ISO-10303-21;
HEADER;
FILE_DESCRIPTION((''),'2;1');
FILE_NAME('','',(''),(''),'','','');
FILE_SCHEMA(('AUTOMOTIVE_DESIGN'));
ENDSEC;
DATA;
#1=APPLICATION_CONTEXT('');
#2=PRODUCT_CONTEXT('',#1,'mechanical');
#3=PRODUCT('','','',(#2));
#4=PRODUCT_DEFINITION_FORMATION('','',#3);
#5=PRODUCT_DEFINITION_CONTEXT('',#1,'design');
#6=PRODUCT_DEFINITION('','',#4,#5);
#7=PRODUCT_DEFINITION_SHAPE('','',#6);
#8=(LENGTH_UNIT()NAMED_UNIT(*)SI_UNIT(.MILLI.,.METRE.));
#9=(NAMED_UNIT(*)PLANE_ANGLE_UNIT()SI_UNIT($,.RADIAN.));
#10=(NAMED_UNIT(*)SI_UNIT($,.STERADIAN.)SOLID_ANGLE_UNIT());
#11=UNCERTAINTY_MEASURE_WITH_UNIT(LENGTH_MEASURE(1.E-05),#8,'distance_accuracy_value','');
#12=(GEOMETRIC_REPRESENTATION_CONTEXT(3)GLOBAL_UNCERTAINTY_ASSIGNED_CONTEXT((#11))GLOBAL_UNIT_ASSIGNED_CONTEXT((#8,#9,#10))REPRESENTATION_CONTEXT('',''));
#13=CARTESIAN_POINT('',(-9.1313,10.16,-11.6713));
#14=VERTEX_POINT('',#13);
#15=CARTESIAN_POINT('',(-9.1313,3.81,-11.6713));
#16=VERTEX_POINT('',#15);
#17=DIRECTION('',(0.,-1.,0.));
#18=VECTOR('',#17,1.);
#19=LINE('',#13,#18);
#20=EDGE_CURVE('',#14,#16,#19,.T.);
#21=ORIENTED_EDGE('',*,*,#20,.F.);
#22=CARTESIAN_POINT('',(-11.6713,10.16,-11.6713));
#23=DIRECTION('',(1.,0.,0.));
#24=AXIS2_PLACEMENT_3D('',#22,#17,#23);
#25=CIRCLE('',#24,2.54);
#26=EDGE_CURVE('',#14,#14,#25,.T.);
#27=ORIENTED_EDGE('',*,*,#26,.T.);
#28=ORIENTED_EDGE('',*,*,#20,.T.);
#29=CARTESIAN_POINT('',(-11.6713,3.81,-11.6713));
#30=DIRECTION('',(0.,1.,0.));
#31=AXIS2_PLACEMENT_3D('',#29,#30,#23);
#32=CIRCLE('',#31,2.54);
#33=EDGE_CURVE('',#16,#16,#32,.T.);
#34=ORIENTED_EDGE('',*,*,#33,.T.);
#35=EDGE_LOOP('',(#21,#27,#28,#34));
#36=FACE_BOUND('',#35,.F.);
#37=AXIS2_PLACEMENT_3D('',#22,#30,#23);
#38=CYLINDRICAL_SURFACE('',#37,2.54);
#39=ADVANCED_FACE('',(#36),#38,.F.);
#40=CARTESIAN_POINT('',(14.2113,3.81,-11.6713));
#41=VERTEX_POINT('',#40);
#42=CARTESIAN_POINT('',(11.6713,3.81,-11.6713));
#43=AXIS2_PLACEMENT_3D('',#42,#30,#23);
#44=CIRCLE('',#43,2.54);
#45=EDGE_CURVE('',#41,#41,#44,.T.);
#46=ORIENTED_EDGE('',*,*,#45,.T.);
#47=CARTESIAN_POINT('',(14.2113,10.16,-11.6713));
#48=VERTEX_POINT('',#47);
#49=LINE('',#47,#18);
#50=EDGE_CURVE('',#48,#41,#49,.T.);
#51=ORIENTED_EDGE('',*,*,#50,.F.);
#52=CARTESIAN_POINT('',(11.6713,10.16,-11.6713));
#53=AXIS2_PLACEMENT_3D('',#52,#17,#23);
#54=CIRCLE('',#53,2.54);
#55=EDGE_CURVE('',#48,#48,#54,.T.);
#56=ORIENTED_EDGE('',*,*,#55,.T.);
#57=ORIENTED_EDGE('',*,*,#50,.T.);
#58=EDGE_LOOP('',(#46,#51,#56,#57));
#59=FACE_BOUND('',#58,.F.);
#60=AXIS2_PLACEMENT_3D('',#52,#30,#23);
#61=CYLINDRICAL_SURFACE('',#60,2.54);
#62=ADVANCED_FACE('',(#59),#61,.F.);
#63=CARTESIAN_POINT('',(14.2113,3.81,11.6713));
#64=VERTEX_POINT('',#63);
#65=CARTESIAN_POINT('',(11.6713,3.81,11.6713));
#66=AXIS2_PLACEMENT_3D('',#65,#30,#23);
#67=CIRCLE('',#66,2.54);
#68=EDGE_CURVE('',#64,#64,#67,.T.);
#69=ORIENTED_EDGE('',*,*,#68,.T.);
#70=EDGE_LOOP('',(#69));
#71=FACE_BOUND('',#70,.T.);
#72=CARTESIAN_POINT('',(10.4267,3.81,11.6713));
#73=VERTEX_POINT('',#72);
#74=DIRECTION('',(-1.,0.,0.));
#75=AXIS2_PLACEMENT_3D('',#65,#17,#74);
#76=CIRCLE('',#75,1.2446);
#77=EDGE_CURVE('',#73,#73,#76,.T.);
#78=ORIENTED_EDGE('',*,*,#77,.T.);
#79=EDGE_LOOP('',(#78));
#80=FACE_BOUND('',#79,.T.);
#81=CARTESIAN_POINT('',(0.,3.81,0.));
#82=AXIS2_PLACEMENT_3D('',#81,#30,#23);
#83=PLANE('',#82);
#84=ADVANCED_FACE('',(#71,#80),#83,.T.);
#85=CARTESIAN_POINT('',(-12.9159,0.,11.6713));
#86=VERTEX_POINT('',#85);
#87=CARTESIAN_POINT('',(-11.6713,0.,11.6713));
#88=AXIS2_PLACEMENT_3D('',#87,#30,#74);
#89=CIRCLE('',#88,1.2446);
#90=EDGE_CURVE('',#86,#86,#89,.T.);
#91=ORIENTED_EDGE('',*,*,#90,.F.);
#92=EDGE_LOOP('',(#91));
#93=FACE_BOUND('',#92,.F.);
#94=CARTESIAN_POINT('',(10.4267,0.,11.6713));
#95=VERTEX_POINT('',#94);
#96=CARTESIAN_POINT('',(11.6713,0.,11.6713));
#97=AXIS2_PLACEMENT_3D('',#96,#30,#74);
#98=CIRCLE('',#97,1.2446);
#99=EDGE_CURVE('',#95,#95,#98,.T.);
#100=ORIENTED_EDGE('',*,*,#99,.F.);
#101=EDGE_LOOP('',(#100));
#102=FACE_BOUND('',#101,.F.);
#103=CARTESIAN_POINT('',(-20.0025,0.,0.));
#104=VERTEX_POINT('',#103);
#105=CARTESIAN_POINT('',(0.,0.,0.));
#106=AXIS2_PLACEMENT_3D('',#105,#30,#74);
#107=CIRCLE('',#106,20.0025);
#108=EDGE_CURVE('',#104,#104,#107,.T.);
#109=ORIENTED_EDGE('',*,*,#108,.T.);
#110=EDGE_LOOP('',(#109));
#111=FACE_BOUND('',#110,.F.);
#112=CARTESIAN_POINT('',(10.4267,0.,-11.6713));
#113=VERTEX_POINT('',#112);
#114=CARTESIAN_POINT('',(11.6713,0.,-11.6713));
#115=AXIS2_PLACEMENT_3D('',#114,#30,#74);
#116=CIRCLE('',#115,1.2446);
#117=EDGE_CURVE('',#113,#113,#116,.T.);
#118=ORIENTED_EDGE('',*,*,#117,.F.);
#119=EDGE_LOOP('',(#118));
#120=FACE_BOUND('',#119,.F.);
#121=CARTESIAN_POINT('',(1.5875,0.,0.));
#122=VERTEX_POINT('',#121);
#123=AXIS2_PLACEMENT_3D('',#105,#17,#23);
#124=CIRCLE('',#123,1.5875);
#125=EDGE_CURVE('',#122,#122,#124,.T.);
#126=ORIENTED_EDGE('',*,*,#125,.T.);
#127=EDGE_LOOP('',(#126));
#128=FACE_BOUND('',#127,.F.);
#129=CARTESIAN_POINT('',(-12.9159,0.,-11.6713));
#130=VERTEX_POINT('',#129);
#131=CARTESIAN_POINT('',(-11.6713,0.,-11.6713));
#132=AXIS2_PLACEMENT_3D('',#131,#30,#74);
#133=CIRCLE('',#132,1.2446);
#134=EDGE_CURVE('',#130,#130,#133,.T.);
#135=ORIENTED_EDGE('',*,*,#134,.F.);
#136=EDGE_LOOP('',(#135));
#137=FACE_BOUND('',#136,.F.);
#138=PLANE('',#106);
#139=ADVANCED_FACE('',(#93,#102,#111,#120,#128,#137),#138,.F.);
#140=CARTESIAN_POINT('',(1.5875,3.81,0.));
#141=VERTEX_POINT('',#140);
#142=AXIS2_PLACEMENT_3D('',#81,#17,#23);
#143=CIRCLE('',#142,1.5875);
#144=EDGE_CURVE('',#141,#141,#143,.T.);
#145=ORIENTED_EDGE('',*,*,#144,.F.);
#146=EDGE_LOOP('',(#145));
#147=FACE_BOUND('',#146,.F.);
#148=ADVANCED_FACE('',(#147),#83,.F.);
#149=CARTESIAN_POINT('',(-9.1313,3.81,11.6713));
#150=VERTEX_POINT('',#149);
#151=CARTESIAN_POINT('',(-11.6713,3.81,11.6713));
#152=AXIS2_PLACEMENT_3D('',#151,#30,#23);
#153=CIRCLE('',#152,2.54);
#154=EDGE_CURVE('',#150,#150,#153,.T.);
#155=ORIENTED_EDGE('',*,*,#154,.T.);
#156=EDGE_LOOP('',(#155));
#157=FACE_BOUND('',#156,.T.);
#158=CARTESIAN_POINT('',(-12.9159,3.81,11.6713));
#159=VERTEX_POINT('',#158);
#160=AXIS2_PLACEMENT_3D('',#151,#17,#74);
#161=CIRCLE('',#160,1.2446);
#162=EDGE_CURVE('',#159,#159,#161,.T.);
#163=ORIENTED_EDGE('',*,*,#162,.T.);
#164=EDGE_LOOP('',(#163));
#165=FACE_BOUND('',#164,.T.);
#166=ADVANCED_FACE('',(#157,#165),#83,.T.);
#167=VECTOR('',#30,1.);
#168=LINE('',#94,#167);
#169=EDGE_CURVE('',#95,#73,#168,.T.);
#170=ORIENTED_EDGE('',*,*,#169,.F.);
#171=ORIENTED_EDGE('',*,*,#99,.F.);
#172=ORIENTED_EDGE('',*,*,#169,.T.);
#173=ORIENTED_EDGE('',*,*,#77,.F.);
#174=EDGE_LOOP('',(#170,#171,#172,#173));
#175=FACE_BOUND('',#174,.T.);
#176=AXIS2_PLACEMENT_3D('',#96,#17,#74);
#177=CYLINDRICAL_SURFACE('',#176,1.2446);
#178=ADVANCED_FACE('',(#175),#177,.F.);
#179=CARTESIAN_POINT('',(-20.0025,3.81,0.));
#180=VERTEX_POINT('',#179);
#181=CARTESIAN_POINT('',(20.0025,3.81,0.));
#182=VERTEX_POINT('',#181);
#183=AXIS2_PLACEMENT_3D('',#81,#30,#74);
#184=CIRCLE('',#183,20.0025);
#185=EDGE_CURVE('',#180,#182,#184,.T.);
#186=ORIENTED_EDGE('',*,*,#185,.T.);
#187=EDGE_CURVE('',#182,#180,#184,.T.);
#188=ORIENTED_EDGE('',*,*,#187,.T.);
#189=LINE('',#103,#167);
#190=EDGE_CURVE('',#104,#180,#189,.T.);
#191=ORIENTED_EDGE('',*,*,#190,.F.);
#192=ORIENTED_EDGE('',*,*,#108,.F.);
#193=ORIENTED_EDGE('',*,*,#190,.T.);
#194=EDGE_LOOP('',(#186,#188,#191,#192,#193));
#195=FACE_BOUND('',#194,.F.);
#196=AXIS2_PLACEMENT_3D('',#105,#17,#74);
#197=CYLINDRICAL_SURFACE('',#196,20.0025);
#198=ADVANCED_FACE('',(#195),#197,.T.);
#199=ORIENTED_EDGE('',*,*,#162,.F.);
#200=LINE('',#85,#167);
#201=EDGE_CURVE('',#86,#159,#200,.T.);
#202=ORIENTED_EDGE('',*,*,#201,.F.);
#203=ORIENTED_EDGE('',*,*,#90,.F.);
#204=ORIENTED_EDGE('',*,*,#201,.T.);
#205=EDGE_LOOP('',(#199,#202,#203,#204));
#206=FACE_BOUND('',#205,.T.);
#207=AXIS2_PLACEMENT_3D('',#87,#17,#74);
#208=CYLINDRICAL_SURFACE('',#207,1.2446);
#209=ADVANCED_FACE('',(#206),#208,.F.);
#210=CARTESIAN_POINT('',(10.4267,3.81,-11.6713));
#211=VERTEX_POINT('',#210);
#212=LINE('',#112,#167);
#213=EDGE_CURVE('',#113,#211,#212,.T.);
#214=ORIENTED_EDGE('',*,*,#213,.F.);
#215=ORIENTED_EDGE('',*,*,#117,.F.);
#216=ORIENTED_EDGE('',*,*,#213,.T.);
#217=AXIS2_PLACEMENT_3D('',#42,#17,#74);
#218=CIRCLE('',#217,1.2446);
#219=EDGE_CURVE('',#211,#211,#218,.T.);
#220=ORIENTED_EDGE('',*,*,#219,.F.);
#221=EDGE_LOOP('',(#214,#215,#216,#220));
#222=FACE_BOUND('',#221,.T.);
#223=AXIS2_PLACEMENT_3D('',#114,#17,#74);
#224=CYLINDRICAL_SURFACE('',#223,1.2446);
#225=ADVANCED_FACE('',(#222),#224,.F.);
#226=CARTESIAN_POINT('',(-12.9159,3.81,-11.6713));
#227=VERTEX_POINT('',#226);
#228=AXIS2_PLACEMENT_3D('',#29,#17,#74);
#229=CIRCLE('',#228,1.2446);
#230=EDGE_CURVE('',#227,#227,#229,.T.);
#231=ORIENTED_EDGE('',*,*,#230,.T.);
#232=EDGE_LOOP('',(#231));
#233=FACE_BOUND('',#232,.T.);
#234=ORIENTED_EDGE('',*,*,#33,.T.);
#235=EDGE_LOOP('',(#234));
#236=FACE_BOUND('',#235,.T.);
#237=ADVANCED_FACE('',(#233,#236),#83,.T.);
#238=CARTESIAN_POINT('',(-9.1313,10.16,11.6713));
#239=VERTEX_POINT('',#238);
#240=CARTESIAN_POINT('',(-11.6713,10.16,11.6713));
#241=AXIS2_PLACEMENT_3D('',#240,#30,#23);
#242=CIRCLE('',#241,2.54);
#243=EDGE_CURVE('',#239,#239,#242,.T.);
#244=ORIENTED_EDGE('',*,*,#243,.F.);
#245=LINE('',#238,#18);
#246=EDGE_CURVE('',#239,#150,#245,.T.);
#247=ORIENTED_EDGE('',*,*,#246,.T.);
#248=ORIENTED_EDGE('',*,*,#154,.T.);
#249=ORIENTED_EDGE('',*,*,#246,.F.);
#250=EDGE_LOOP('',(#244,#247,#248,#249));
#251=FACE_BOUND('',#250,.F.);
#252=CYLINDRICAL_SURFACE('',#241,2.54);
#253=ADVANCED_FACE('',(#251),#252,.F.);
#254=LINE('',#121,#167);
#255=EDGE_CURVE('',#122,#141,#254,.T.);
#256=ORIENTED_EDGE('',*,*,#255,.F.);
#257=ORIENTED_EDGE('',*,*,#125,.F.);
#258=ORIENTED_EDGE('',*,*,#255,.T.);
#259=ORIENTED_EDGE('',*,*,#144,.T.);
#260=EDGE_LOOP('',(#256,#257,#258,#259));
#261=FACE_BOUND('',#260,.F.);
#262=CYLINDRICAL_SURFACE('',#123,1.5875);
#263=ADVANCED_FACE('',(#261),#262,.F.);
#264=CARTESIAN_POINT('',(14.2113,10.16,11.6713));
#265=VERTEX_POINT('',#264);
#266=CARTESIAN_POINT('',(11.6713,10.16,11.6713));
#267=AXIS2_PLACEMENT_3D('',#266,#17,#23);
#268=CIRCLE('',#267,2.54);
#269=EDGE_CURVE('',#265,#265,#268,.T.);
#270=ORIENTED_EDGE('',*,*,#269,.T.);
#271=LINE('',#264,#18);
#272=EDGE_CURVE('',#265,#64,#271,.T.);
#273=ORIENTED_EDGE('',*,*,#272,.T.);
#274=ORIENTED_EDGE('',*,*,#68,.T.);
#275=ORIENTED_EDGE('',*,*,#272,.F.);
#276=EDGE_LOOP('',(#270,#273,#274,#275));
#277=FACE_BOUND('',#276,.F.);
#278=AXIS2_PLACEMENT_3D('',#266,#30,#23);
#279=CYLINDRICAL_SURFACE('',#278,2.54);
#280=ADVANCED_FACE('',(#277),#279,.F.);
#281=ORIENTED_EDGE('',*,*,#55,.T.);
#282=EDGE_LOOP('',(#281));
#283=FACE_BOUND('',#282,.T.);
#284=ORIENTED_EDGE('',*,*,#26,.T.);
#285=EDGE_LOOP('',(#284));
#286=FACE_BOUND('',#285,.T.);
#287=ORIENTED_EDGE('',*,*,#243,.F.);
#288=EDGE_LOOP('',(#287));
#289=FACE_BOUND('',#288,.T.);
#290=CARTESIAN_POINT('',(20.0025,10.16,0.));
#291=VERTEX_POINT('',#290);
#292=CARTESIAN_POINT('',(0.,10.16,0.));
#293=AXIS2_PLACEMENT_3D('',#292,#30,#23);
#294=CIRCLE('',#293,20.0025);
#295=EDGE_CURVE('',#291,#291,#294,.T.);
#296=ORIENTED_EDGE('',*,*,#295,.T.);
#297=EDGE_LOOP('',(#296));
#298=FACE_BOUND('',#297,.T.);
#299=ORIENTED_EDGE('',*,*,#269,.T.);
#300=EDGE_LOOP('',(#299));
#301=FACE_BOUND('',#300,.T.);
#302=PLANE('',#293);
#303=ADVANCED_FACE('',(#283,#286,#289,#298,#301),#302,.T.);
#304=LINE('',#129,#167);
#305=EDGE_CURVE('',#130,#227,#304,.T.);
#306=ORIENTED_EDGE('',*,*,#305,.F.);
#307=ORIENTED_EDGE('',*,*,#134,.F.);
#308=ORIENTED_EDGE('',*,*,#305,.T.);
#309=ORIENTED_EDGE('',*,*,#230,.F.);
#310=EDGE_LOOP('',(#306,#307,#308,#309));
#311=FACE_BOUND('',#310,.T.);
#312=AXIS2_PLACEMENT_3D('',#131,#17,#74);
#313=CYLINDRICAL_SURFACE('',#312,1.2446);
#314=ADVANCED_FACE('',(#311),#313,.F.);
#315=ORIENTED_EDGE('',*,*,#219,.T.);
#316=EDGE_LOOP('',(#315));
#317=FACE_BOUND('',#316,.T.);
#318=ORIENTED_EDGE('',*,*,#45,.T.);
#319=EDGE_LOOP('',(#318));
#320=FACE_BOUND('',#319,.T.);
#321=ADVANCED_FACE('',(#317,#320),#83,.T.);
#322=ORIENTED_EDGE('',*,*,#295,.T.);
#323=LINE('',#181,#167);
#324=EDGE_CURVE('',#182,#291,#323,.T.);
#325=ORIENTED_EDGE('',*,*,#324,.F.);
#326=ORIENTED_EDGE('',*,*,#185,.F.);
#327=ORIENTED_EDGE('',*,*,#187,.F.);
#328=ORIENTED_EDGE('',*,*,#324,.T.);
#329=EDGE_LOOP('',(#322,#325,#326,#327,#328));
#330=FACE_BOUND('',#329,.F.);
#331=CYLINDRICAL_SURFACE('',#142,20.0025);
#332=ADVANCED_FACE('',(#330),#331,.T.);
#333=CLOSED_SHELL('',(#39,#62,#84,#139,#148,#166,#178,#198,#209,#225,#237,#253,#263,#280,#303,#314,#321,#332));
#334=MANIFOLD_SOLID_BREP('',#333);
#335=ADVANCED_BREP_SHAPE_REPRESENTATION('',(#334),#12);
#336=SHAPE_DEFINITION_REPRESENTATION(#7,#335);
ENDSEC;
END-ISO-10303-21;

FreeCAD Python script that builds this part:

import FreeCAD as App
import Part
import Sketcher
Q = App.Units.Quantity

doc = App.newDocument("Part")
params = doc.addObject("Spreadsheet::Sheet", "Params")
for row, (alias, value) in enumerate([
    ("sketch1_diameter", "1.575 in"),
    ("sketch1_diameter2", "0.098 in"),
    ("pad1_length", "0.15 in"),
    ("sketch2_diameter", "0.125 in"),
    ("pocket1_length", "0.25 in"),
    ("sketch3_diameter", "1.575 in"),
    ("pad2_length", "0.25 in"),
    ("sketch4_diameter", "0.2 in"),
    ("pocket2_length", "0.25 in"),
], start=1):
    params.set(f"A{row}", alias)
    params.set(f"B{row}", "=" + value)
    params.setAlias(f"B{row}", alias)

body = doc.addObject("PartDesign::Body", "Body")

# Sketch on XZ plane
sketch1 = body.newObject("Sketcher::SketchObject", "Sketch")
sketch1.AttachmentSupport = (doc.getObject("XZ_Plane"), [""])
sketch1.MapMode = "FlatFace"
sketch1.addGeometry(Part.Circle(App.Vector(0, 0, 0), App.Vector(0, 0, 1), 20), False)
sketch1.addGeometry(Part.Circle(App.Vector(11.7, 11.7, 0), App.Vector(0, 0, 1), 1.2), False)
sketch1.addGeometry(Part.Circle(App.Vector(11.7, -11.7, 0), App.Vector(0, 0, 1), 1.2), False)
sketch1.addGeometry(Part.Circle(App.Vector(-11.7, -11.7, 0), App.Vector(0, 0, 1), 1.2), False)
sketch1.addGeometry(Part.Circle(App.Vector(-11.7, 11.7, 0), App.Vector(0, 0, 1), 1.2), False)
sketch1.addConstraint(Sketcher.Constraint("Coincident", 0, 3, -1, 1))
sketch1.addConstraint(Sketcher.Constraint("Equal", 1, 2))
sketch1.addConstraint(Sketcher.Constraint("Equal", 2, 3))
sketch1.addConstraint(Sketcher.Constraint("Equal", 3, 4))
sketch1.addConstraint(Sketcher.Constraint("Symmetric", 1, 3, 3, 3, -1, 1))
sketch1.addConstraint(Sketcher.Constraint("Symmetric", 2, 3, 4, 3, -1, 1))
sketch1.addConstraint(Sketcher.Constraint("Symmetric", 2, 3, 3, 3, -2))
sketch1.addConstraint(Sketcher.Constraint("Diameter", 0, Q("1.575 in")))
sketch1.addConstraint(Sketcher.Constraint("Diameter", 1, Q("0.098 in")))
sketch1.addConstraint(Sketcher.Constraint("DistanceY", 2, 3, 1, 3, Q("0.919 in")))
sketch1.addConstraint(Sketcher.Constraint("DistanceX", 3, 3, 2, 3, Q("0.919 in")))
sketch1.setExpression("Constraints[7]", "Params.sketch1_diameter")
sketch1.setExpression("Constraints[8]", "Params.sketch1_diameter2")
pad1 = body.newObject("PartDesign::Pad", "Pad")
pad1.Profile = sketch1
pad1.setExpression("Length", "Params.pad1_length")
pad1.Reversed = True

# Sketch on XZ plane
sketch2 = body.newObject("Sketcher::SketchObject", "Sketch001")
sketch2.AttachmentSupport = (doc.getObject("XZ_Plane"), [""])
sketch2.MapMode = "FlatFace"
sketch2.addGeometry(Part.Circle(App.Vector(0, 0, 0), App.Vector(0, 0, 1), 1.6), False)
sketch2.addConstraint(Sketcher.Constraint("Coincident", 0, 3, -1, 1))
sketch2.addConstraint(Sketcher.Constraint("Diameter", 0, Q("0.125 in")))
sketch2.setExpression("Constraints[1]", "Params.sketch2_diameter")
pocket1 = body.newObject("PartDesign::Pocket", "Pocket")
pocket1.Profile = sketch2
pocket1.setExpression("Length", "Params.pocket1_length")

# Sketch on XZ plane
sketch3 = body.newObject("Sketcher::SketchObject", "Sketch002")
sketch3.AttachmentSupport = (doc.getObject("XZ_Plane"), [""])
sketch3.MapMode = "FlatFace"
sketch3.AttachmentOffset = App.Placement(App.Vector(0, 0, -0.15 * 25.4), App.Rotation())
sketch3.addGeometry(Part.Circle(App.Vector(0, 0, 0), App.Vector(0, 0, 1), 20), False)
sketch3.addConstraint(Sketcher.Constraint("Coincident", 0, 3, -1, 1))
sketch3.addConstraint(Sketcher.Constraint("Diameter", 0, Q("1.575 in")))
sketch3.setExpression("Constraints[1]", "Params.sketch3_diameter")
pad2 = body.newObject("PartDesign::Pad", "Pad001")
pad2.Profile = sketch3
pad2.setExpression("Length", "Params.pad2_length")
pad2.Reversed = True

# Sketch on XZ plane
sketch4 = body.newObject("Sketcher::SketchObject", "Sketch003")
sketch4.AttachmentSupport = (doc.getObject("XZ_Plane"), [""])
sketch4.MapMode = "FlatFace"
sketch4.AttachmentOffset = App.Placement(App.Vector(0, 0, -0.4 * 25.4), App.Rotation())
sketch4.addGeometry(Part.Circle(App.Vector(-11.7, 11.7, 0), App.Vector(0, 0, 1), 2.5), False)
sketch4.addGeometry(Part.Circle(App.Vector(11.7, 11.7, 0), App.Vector(0, 0, 1), 2.5), False)
sketch4.addGeometry(Part.Circle(App.Vector(-11.7, -11.7, 0), App.Vector(0, 0, 1), 2.5), False)
sketch4.addGeometry(Part.Circle(App.Vector(11.7, -11.7, 0), App.Vector(0, 0, 1), 2.5), False)
sketch4.addConstraint(Sketcher.Constraint("Equal", 0, 1))
sketch4.addConstraint(Sketcher.Constraint("Equal", 1, 2))
sketch4.addConstraint(Sketcher.Constraint("Equal", 2, 3))
sketch4.addConstraint(Sketcher.Constraint("Symmetric", 1, 3, 2, 3, -1, 1))
sketch4.addConstraint(Sketcher.Constraint("Symmetric", 0, 3, 3, 3, -1, 1))
sketch4.addConstraint(Sketcher.Constraint("Symmetric", 0, 3, 1, 3, -2))
sketch4.addConstraint(Sketcher.Constraint("Diameter", 0, Q("0.2 in")))
sketch4.addConstraint(Sketcher.Constraint("DistanceX", 0, 3, 1, 3, Q("0.919 in")))
sketch4.addConstraint(Sketcher.Constraint("DistanceY", 2, 3, 0, 3, Q("0.919 in")))
sketch4.setExpression("Constraints[6]", "Params.sketch4_diameter")
pocket2 = body.newObject("PartDesign::Pocket", "Pocket001")
pocket2.Profile = sketch4
pocket2.setExpression("Length", "Params.pocket2_length")
pocket2.Reversed = True

doc.recompute()
